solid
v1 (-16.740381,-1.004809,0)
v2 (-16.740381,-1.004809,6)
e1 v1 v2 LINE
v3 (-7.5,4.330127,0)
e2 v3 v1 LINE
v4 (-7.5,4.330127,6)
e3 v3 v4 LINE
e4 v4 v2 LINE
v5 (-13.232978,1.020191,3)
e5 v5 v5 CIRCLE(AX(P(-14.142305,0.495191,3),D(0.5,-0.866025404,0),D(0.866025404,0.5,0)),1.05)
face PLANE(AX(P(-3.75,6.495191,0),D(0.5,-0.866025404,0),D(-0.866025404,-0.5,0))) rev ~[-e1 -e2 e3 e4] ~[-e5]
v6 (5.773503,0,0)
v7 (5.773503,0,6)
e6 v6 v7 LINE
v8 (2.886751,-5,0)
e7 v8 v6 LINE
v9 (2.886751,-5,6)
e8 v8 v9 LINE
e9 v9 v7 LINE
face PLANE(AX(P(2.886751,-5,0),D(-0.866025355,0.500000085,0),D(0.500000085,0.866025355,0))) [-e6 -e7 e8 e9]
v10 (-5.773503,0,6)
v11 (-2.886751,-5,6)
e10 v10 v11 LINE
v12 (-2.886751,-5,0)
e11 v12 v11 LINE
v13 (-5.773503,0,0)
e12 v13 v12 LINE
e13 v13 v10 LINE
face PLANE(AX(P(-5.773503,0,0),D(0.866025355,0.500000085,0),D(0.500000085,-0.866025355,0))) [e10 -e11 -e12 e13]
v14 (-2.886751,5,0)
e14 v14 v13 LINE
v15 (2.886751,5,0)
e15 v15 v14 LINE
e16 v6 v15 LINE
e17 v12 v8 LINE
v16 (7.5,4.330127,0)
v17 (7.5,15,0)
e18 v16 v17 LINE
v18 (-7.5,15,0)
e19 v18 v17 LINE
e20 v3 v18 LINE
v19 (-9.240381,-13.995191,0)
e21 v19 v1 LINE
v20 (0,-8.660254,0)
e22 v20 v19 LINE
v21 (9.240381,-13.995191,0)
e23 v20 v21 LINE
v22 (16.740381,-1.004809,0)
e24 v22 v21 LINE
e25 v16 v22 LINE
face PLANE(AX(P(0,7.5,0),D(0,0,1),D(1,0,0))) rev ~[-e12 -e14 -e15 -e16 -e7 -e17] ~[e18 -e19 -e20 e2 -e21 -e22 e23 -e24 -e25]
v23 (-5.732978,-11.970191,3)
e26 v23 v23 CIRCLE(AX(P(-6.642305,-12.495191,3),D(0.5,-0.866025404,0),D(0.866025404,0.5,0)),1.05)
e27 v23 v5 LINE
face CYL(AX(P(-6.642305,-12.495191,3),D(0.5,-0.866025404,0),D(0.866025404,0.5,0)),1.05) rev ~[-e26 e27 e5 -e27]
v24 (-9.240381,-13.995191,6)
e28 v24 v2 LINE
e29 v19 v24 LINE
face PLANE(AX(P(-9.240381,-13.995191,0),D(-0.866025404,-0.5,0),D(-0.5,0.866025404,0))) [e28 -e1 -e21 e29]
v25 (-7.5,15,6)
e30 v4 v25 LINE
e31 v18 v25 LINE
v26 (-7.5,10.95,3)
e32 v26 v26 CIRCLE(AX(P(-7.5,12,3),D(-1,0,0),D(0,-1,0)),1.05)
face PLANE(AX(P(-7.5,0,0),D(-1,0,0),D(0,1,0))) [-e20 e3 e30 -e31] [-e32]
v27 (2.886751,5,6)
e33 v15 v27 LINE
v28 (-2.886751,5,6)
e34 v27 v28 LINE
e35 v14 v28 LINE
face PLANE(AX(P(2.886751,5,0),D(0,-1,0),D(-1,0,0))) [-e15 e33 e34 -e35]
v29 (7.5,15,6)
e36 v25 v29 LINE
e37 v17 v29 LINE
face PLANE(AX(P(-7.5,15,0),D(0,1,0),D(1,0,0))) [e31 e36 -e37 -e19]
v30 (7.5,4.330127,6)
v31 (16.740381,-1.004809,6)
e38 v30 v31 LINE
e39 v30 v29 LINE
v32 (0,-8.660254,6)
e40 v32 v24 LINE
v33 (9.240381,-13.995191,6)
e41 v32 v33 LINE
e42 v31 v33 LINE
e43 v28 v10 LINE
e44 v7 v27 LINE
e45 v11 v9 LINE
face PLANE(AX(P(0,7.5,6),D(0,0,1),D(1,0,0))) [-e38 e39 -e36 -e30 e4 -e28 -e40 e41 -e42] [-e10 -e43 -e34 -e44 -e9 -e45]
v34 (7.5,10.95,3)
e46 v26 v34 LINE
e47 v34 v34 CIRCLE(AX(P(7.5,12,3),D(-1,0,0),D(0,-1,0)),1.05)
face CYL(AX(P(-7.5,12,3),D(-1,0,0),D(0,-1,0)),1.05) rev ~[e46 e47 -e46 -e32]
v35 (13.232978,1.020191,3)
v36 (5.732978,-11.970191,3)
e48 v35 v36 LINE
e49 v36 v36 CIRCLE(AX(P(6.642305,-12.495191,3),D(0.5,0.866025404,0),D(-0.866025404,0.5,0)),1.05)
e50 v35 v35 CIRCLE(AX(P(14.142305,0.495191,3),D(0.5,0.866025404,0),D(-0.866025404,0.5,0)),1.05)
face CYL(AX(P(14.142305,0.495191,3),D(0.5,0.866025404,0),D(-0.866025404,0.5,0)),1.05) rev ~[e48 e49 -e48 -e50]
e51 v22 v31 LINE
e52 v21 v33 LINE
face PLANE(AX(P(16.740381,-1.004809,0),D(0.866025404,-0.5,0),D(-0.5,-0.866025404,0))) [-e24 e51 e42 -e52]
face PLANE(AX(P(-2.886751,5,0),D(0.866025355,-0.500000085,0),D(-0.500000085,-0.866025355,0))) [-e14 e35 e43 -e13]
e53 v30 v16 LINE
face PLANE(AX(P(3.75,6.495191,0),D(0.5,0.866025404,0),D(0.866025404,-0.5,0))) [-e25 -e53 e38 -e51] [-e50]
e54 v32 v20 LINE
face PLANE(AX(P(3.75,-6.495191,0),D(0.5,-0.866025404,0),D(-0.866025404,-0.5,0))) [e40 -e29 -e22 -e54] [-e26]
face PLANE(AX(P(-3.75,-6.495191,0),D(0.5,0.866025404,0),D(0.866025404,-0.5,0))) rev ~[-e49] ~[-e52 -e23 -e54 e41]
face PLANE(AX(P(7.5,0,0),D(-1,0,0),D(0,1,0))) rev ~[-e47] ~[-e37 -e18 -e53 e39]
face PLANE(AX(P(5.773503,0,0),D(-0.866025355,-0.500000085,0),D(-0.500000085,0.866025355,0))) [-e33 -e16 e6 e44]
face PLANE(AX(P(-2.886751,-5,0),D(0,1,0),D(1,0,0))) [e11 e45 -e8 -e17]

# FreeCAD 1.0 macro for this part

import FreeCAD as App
import Part
import Sketcher
Q = App.Units.Quantity


def add_polygon(sketch, points):
    """Adds a closed chain of lines whose ends are joined by coincident constraints."""
    first, n = sketch.GeometryCount, len(points)
    for a, b in zip(points, points[1:] + points[:1]):
        sketch.addGeometry(Part.LineSegment(App.Vector(*a, 0), App.Vector(*b, 0)), False)
    for i in range(n):
        sketch.addConstraint(Sketcher.Constraint("Coincident", first + i, 2, first + (i + 1) % n, 1))

doc = App.newDocument("Part")
body = doc.addObject("PartDesign::Body", "Body")

# Sketch on XY plane
sketch1 = body.newObject("Sketcher::SketchObject", "Sketch")
sketch1.AttachmentSupport = (doc.getObject("XY_Plane"), [""])
sketch1.MapMode = "FlatFace"
add_polygon(sketch1, [(-8, 15), (-8, 0), (8, 0), (8, 15)])  # lines 0-3
sketch1.addConstraint([
    Sketcher.Constraint("Vertical", 0),
    Sketcher.Constraint("Horizontal", 1),
    Sketcher.Constraint("Vertical", 2),
    Sketcher.Constraint("Horizontal", 3),
    Sketcher.Constraint("Symmetric", 0, 2, 1, 2, -1, 1),
    Sketcher.Constraint("Equal", 3, 0),
    Sketcher.Constraint("DistanceX", 1, 1, 1, 2, 15.0),
])
pad1 = body.newObject("PartDesign::Pad", "Pad")
pad1.Profile = sketch1
pad1.Length = 6

# Sketch on YZ plane
sketch2 = body.newObject("Sketcher::SketchObject", "Sketch001")
sketch2.AttachmentSupport = (doc.getObject("YZ_Plane"), [""])
sketch2.MapMode = "FlatFace"
sketch2.AttachmentOffset = App.Placement(App.Vector(0, 0, -7.5), App.Rotation())
sketch2.addGeometry(Part.Circle(App.Vector(12, 3, 0), App.Vector(0, 0, 1), 1.1), False)
sketch2.addConstraint([
    Sketcher.Constraint("Diameter", 0, 2.1),
    Sketcher.Constraint("DistanceX", -1, 1, 0, 3, 12.0),
    Sketcher.Constraint("DistanceY", -1, 1, 0, 3, 3.0),
])
pocket1 = body.newObject("PartDesign::Pocket", "Pocket")
pocket1.Profile = sketch2
pocket1.Type = "ThroughAll"
pocket1.Reversed = True
body2 = doc.addObject("PartDesign::Body", "Body001")
doc.recompute()

body2.BaseFeature = body
doc.recompute()

body3 = doc.addObject("PartDesign::Body", "Body002")
body3.BaseFeature = body
body3.Placement = App.Placement(App.Vector(0, 0, 0), App.Rotation(App.Vector(0, 0, -1), 120))
boolean = body2.newObject("PartDesign::Boolean", "Boolean")
boolean.Type = "Fuse"
boolean.addObjects([body3])
doc.recompute()

body.Placement = App.Placement(App.Vector(0, 0, 0), App.Rotation(App.Vector(0, 0, -1), 240))
boolean2 = body2.newObject("PartDesign::Boolean", "Boolean001")
boolean2.Type = "Fuse"
boolean2.addObjects([body])

# Sketch on XY plane
sketch3 = body2.newObject("Sketcher::SketchObject", "Sketch002")
sketch3.AttachmentSupport = (doc.getObject("XY_Plane001"), [""])
sketch3.MapMode = "FlatFace"
add_polygon(sketch3, [(3, 5), (-3, 5), (-6, 0), (-3, -5), (3, -5), (6, 0)])  # lines 0-5
sketch3.addConstraint([
    Sketcher.Constraint("Horizontal", 0),
    Sketcher.Constraint("Horizontal", 3),
    Sketcher.Constraint("Symmetric", 0, 2, 3, 2, -1, 1),
    Sketcher.Constraint("Symmetric", 1, 2, 4, 2, -1, 1),
    Sketcher.Constraint("PointOnObject", 1, 2, -1),
    Sketcher.Constraint("Parallel", 2, 5),
    Sketcher.Constraint("Vertical", 0, 2, 2, 2),
    Sketcher.Constraint("Angle", 1, Q("-120.000006 deg")),
    Sketcher.Constraint("DistanceY", -1, 1, 0, 2, 5.0),
    Sketcher.Constraint("DistanceX", 0, 2, 0, 1, 5.773502),
])
pocket2 = body2.newObject("PartDesign::Pocket", "Pocket001")
pocket2.Profile = sketch3
pocket2.Type = "ThroughAll"
pocket2.Reversed = True

doc.recompute()
